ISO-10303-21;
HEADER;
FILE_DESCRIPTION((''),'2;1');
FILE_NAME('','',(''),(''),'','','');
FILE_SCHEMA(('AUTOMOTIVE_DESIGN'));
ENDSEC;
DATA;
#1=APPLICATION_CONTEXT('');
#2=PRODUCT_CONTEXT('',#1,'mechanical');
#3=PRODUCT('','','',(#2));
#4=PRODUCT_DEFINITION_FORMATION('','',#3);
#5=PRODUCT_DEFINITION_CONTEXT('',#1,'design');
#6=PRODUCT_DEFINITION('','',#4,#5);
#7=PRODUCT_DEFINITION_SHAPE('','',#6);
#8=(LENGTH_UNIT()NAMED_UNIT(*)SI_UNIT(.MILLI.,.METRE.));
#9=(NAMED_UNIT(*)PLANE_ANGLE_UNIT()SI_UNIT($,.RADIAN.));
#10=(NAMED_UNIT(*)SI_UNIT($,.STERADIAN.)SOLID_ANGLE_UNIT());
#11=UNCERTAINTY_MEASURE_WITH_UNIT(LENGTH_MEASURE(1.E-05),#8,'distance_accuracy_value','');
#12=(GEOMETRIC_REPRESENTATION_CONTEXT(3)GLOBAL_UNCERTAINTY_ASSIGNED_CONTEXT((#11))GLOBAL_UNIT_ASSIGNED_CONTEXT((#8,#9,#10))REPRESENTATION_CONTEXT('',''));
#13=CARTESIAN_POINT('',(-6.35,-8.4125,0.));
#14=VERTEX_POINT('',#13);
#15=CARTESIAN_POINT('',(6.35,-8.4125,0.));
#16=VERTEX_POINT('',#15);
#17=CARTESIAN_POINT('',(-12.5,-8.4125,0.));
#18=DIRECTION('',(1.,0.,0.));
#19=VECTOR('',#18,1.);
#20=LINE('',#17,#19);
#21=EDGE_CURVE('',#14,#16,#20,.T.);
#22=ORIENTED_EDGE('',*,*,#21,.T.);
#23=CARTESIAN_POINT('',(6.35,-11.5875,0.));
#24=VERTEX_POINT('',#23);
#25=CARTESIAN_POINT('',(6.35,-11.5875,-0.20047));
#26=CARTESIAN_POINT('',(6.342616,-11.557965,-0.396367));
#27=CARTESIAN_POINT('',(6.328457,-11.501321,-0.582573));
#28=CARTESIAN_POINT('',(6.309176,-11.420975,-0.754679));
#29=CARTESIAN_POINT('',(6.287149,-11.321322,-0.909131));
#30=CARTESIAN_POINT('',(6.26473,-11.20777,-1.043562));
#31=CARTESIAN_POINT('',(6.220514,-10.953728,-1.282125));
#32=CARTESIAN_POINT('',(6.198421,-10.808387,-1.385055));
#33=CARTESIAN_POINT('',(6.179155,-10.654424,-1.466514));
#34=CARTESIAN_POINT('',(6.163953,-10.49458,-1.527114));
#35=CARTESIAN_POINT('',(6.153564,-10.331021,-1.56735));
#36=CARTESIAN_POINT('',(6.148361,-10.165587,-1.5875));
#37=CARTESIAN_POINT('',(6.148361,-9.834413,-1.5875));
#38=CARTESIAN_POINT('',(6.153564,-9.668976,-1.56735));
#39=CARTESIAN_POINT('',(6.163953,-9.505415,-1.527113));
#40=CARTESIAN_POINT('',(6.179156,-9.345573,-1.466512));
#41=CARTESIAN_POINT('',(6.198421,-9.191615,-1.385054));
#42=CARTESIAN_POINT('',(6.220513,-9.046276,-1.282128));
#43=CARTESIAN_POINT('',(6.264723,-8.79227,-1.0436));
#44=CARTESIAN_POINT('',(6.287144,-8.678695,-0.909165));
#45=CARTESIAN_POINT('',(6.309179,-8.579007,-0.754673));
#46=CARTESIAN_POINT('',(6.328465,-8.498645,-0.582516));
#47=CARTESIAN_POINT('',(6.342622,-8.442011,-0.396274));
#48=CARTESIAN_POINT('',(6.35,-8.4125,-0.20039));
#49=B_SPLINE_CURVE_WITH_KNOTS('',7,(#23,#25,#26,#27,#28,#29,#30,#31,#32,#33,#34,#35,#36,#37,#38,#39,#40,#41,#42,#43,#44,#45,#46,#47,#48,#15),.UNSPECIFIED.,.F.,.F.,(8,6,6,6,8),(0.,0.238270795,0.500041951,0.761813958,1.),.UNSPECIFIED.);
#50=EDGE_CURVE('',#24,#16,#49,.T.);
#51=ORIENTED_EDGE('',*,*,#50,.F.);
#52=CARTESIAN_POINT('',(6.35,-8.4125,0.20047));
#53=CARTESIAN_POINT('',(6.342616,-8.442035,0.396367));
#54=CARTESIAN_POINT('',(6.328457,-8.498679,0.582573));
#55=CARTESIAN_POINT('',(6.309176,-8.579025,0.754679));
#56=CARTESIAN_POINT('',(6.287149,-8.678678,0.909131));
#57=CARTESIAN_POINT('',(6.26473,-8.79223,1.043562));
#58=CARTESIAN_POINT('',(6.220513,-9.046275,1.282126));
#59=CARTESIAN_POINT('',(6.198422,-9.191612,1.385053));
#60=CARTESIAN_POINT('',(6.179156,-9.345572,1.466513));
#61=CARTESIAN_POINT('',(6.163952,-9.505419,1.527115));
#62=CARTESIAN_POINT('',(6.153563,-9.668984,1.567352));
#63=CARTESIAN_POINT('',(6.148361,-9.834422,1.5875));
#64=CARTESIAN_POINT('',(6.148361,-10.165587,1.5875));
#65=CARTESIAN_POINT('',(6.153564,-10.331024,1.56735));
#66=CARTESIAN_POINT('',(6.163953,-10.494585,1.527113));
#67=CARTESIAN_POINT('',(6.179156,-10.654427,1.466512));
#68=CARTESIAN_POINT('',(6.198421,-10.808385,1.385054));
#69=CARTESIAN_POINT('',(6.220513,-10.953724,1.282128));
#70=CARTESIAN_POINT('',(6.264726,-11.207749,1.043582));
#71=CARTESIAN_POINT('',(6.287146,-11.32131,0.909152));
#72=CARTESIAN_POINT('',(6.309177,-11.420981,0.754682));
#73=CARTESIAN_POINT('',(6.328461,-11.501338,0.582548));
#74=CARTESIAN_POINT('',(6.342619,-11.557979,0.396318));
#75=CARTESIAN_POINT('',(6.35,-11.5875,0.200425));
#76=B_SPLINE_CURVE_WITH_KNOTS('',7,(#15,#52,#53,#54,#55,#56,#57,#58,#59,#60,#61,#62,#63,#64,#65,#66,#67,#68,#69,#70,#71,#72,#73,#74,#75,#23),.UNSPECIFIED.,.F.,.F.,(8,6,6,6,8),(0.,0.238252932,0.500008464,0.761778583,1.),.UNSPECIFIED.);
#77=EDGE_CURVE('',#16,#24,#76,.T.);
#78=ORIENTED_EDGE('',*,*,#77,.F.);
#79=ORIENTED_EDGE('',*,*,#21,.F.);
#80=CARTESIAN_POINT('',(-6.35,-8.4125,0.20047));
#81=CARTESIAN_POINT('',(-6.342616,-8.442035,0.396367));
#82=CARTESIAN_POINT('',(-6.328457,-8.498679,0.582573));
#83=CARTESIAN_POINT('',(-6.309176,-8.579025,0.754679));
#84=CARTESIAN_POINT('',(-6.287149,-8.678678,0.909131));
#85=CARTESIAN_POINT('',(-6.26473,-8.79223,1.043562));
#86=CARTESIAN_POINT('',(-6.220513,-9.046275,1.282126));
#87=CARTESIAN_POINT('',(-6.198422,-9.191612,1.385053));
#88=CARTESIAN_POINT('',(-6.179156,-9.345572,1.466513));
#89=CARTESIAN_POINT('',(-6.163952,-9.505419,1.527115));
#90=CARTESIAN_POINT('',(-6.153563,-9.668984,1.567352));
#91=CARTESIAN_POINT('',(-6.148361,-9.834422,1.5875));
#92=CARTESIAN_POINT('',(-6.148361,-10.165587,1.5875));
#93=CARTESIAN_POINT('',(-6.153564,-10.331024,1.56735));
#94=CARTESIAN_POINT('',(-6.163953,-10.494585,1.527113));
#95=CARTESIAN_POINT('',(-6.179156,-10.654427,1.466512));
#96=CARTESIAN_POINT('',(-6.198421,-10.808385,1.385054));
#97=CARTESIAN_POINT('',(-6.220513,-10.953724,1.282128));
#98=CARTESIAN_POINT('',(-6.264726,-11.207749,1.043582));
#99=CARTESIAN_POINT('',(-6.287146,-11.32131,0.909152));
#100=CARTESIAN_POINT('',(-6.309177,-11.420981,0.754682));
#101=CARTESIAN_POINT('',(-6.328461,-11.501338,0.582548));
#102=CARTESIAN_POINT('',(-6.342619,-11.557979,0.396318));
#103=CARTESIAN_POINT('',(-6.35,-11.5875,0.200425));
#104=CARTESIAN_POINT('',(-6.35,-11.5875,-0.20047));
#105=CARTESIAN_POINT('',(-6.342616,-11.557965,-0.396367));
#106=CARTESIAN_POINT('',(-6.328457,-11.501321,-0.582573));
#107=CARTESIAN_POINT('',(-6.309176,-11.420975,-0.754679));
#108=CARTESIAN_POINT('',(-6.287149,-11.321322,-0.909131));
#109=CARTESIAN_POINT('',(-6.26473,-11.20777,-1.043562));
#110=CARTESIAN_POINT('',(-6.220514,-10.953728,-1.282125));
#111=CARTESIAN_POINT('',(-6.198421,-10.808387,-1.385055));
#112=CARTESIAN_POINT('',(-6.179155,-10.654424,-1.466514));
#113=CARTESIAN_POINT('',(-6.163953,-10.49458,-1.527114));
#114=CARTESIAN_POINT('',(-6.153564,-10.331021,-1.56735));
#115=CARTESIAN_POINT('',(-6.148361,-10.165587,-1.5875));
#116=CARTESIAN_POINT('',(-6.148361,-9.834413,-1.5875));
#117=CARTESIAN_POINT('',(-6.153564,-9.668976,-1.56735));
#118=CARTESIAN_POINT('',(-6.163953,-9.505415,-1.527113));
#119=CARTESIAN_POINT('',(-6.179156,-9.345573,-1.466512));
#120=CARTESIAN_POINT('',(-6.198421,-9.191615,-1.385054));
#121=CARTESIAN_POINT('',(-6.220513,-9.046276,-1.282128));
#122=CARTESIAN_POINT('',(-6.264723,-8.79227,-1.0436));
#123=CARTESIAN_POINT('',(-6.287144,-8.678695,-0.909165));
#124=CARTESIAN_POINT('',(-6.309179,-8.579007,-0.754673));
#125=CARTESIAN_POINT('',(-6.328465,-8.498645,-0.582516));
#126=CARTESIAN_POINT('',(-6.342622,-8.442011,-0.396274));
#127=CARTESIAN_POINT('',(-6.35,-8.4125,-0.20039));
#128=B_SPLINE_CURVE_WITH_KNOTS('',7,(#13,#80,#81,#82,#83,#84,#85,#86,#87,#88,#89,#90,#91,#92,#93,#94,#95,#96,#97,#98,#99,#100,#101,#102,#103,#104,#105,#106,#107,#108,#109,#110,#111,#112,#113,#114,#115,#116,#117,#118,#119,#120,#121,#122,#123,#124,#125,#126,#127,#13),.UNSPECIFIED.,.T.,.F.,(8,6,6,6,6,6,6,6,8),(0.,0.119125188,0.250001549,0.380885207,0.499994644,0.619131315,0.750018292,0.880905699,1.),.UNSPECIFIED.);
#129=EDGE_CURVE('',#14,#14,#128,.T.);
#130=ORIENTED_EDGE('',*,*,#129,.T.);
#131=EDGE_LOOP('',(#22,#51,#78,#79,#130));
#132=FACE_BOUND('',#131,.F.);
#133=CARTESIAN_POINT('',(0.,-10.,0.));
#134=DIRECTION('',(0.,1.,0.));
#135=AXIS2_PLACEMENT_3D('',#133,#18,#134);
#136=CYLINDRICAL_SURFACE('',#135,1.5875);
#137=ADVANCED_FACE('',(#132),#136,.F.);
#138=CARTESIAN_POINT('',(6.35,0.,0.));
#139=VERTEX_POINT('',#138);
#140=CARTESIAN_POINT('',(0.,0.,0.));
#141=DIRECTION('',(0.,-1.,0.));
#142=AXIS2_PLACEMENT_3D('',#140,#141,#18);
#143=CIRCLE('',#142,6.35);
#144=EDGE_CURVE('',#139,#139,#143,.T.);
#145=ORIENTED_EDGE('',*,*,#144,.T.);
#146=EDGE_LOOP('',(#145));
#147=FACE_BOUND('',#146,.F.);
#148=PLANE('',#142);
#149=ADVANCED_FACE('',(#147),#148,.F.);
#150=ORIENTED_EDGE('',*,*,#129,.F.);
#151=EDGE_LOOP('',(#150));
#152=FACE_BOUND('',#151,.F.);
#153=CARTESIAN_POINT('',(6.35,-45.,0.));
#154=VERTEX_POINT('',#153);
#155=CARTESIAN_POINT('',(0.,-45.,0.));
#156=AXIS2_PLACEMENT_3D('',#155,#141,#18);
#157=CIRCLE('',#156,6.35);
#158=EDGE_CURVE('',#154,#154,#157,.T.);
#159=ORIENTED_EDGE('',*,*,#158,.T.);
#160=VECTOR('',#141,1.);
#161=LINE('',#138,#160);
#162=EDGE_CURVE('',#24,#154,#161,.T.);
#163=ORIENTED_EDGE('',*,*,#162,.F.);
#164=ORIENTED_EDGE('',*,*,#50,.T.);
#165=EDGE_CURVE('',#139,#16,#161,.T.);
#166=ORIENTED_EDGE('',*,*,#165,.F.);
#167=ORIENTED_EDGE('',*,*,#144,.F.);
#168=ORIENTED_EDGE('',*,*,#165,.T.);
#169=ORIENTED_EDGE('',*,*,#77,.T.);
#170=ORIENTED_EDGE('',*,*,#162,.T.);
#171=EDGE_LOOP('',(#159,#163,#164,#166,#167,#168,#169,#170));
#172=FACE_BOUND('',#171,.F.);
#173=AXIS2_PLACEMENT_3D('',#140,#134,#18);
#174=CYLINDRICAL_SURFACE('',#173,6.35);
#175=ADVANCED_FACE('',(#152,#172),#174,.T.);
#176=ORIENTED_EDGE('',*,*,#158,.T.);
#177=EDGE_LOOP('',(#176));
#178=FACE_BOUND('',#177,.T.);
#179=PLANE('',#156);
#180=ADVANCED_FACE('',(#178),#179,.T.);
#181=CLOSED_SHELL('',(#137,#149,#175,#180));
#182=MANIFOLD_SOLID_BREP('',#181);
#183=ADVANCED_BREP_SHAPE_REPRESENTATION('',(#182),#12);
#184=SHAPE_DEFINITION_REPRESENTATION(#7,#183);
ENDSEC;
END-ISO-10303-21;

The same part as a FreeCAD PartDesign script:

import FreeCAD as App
import Part
import Sketcher

V = App.Vector
Q = App.Units.Quantity

doc = App.newDocument("Part")
body = doc.addObject("PartDesign::Body", "Body")

sketch1 = doc.addObject("Sketcher::SketchObject", "Sketch")
body.addObject(sketch1)
sketch1.AttachmentSupport = (doc.XZ_Plane, [""])
sketch1.MapMode = "FlatFace"
sketch1.addGeometry(Part.Circle(V(0, 0, 0), V(0, 0, 1), 6), False)
sketch1.addConstraint(Sketcher.Constraint("Coincident", 0, 3, -1, 1))
sketch1.addConstraint(Sketcher.Constraint("Diameter", 0, Q("12.7 mm")))
pad1 = doc.addObject("PartDesign::Pad", "Pad")
body.addObject(pad1)
pad1.Profile = sketch1
pad1.Length = 45

sketch2 = doc.addObject("Sketcher::SketchObject", "Sketch001")
body.addObject(sketch2)
sketch2.AttachmentSupport = (doc.YZ_Plane, [""])
sketch2.MapMode = "FlatFace"
sketch2.addGeometry(Part.Circle(V(-10, 0, 0), V(0, 0, 1), 1.6), False)
sketch2.addConstraint(Sketcher.Constraint("PointOnObject", 0, 3, -1))
sketch2.addConstraint(Sketcher.Constraint("Diameter", 0, Q("3.175 mm")))
sketch2.addConstraint(Sketcher.Constraint("DistanceX", 0, 3, -1, 1, Q("10 mm")))
pocket1 = doc.addObject("PartDesign::Pocket", "Pocket")
body.addObject(pocket1)
pocket1.Profile = sketch2
pocket1.Length = 25
pocket1.Midplane = True

doc.recompute()
